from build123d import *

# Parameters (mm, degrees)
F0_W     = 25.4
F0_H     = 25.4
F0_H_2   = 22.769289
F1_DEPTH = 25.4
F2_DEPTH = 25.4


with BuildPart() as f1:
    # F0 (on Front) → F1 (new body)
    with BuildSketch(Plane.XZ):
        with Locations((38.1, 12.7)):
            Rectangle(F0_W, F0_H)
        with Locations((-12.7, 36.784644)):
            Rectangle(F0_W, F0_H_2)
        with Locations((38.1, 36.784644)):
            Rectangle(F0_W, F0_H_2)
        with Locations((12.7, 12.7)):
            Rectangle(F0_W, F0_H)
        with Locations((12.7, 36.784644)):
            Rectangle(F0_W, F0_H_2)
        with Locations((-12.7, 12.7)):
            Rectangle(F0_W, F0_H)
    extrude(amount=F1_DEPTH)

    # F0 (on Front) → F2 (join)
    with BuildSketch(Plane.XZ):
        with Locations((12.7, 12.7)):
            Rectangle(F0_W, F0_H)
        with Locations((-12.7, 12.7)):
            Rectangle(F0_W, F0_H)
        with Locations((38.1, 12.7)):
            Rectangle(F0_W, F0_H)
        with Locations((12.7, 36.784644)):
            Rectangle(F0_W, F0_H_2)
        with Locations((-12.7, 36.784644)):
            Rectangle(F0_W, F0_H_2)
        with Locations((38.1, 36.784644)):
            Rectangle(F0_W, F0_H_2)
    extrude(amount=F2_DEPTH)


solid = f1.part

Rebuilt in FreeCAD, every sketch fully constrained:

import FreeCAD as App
import Part
import Sketcher
Q = App.Units.Quantity

doc = App.newDocument("Part")
body = doc.addObject("PartDesign::Body", "Body")

# Sketch on XZ plane
sketch1 = body.newObject("Sketcher::SketchObject", "Sketch")
sketch1.AttachmentSupport = (doc.getObject("XZ_Plane"), [""])
sketch1.MapMode = "FlatFace"
sketch1.addGeometry(Part.LineSegment(App.Vector(-25, 48, 0), App.Vector(-25, 0, 0)), False)
sketch1.addGeometry(Part.LineSegment(App.Vector(-25, 0, 0), App.Vector(51, 0, 0)), False)
sketch1.addGeometry(Part.LineSegment(App.Vector(51, 0, 0), App.Vector(51, 48, 0)), False)
sketch1.addGeometry(Part.LineSegment(App.Vector(51, 48, 0), App.Vector(-25, 48, 0)), False)
sketch1.addConstraint(Sketcher.Constraint("Coincident", 0, 2, 1, 1))
sketch1.addConstraint(Sketcher.Constraint("Coincident", 1, 2, 2, 1))
sketch1.addConstraint(Sketcher.Constraint("Coincident", 2, 2, 3, 1))
sketch1.addConstraint(Sketcher.Constraint("Coincident", 3, 2, 0, 1))
sketch1.addConstraint(Sketcher.Constraint("Vertical", 0))
sketch1.addConstraint(Sketcher.Constraint("Horizontal", 1))
sketch1.addConstraint(Sketcher.Constraint("Vertical", 2))
sketch1.addConstraint(Sketcher.Constraint("Horizontal", 3))
sketch1.addConstraint(Sketcher.Constraint("PointOnObject", 0, 2, -1))
sketch1.addConstraint(Sketcher.Constraint("DistanceX", 1, 1, 1, 2, Q("3 in")))
sketch1.addConstraint(Sketcher.Constraint("DistanceX", 0, 2, -1, 1, Q("1 in")))
sketch1.addConstraint(Sketcher.Constraint("DistanceY", 0, 2, 0, 1, 48.169289))
pad1 = body.newObject("PartDesign::Pad", "Pad")
pad1.Profile = sketch1
pad1.Length = Q("1 in")

# Sketch on XZ plane
sketch2 = body.newObject("Sketcher::SketchObject", "Sketch001")
sketch2.AttachmentSupport = (doc.getObject("XZ_Plane"), [""])
sketch2.MapMode = "FlatFace"
sketch2.addGeometry(Part.LineSegment(App.Vector(-25, 48, 0), App.Vector(-25, 0, 0)), False)
sketch2.addGeometry(Part.LineSegment(App.Vector(-25, 0, 0), App.Vector(51, 0, 0)), False)
sketch2.addGeometry(Part.LineSegment(App.Vector(51, 0, 0), App.Vector(51, 48, 0)), False)
sketch2.addGeometry(Part.LineSegment(App.Vector(51, 48, 0), App.Vector(-25, 48, 0)), False)
sketch2.addConstraint(Sketcher.Constraint("Coincident", 0, 2, 1, 1))
sketch2.addConstraint(Sketcher.Constraint("Coincident", 1, 2, 2, 1))
sketch2.addConstraint(Sketcher.Constraint("Coincident", 2, 2, 3, 1))
sketch2.addConstraint(Sketcher.Constraint("Coincident", 3, 2, 0, 1))
sketch2.addConstraint(Sketcher.Constraint("Vertical", 0))
sketch2.addConstraint(Sketcher.Constraint("Horizontal", 1))
sketch2.addConstraint(Sketcher.Constraint("Vertical", 2))
sketch2.addConstraint(Sketcher.Constraint("Horizontal", 3))
sketch2.addConstraint(Sketcher.Constraint("PointOnObject", 0, 2, -1))
sketch2.addConstraint(Sketcher.Constraint("DistanceX", 1, 1, 1, 2, Q("3 in")))
sketch2.addConstraint(Sketcher.Constraint("DistanceX", 0, 2, -1, 1, Q("1 in")))
sketch2.addConstraint(Sketcher.Constraint("DistanceY", 0, 2, 0, 1, 48.169289))
pad2 = body.newObject("PartDesign::Pad", "Pad001")
pad2.Profile = sketch2
pad2.Length = Q("1 in")

doc.recompute()
